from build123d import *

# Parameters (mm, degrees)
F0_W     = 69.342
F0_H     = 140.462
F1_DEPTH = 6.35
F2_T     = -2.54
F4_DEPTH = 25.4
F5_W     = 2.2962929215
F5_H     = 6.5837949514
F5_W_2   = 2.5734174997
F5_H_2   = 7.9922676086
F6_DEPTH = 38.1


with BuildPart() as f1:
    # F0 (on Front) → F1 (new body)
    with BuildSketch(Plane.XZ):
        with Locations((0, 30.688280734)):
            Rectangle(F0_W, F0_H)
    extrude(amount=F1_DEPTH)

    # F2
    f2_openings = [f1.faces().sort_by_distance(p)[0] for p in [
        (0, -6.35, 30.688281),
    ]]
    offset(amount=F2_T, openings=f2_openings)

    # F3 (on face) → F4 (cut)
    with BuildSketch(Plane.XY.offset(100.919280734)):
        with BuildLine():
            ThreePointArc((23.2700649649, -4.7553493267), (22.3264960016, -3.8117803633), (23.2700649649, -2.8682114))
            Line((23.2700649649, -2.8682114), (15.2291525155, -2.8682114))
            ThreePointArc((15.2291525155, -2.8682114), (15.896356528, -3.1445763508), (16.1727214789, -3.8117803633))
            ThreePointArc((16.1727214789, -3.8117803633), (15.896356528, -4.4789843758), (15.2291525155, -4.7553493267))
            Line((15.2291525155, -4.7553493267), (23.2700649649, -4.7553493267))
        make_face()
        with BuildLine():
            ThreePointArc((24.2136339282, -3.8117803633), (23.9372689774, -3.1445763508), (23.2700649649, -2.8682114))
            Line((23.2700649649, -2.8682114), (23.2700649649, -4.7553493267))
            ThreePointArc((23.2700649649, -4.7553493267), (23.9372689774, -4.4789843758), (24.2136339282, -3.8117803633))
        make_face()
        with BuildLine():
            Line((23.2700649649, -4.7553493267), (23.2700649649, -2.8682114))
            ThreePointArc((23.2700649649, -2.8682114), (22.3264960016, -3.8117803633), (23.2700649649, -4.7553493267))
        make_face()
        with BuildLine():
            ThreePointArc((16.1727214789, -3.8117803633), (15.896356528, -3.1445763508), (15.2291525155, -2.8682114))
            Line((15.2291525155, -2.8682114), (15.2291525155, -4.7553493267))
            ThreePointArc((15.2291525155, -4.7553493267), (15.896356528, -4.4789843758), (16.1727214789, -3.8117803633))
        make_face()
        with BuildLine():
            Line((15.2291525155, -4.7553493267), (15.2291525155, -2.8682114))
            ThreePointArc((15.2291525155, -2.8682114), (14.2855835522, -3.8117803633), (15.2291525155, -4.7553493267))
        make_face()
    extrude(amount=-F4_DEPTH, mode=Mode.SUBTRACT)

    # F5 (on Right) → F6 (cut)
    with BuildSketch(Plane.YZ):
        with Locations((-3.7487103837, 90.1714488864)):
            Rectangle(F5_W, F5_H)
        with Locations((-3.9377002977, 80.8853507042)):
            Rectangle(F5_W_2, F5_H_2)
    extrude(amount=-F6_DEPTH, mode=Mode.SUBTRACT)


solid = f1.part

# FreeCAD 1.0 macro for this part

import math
import FreeCAD as App
import Part
import Sketcher

V = App.Vector
Q = App.Units.Quantity


def faces_at(feature, points):
    """Names of the faces that lie closest to the given points."""
    faces = feature.Shape.Faces
    near = lambda p: min(range(len(faces)), key=lambda i: faces[i].distToShape(Part.Vertex(*p))[0])
    return sorted({f"Face{near(p) + 1}" for p in points})

doc = App.newDocument("Part")
body = doc.addObject("PartDesign::Body", "Body")

# Sketch on XZ plane
sketch1 = body.newObject("Sketcher::SketchObject", "Sketch")
sketch1.AttachmentSupport = (doc.getObject("XZ_Plane"), [""])
sketch1.MapMode = "FlatFace"
sketch1.addGeometry(Part.LineSegment(V(-35, 101, 0), V(-35, -40, 0)), False)
sketch1.addGeometry(Part.LineSegment(V(-35, -40, 0), V(35, -40, 0)), False)
sketch1.addGeometry(Part.LineSegment(V(35, -40, 0), V(35, 101, 0)), False)
sketch1.addGeometry(Part.LineSegment(V(35, 101, 0), V(-35, 101, 0)), False)
sketch1.addConstraint(Sketcher.Constraint("Coincident", 0, 2, 1, 1))
sketch1.addConstraint(Sketcher.Constraint("Coincident", 1, 2, 2, 1))
sketch1.addConstraint(Sketcher.Constraint("Coincident", 2, 2, 3, 1))
sketch1.addConstraint(Sketcher.Constraint("Coincident", 3, 2, 0, 1))
sketch1.addConstraint(Sketcher.Constraint("Vertical", 0))
sketch1.addConstraint(Sketcher.Constraint("Horizontal", 1))
sketch1.addConstraint(Sketcher.Constraint("Vertical", 2))
sketch1.addConstraint(Sketcher.Constraint("Horizontal", 3))
sketch1.addConstraint(Sketcher.Constraint("DistanceX", 1, 1, 1, 2, Q("2.73 in")))
sketch1.addConstraint(Sketcher.Constraint("DistanceY", 0, 2, 0, 1, Q("5.53 in")))
sketch1.addConstraint(Sketcher.Constraint("DistanceX", 0, 2, -1, 1, Q("1.365 in")))
sketch1.addConstraint(Sketcher.Constraint("DistanceY", 0, 2, -1, 1, Q("1.5568 in")))
pad1 = body.newObject("PartDesign::Pad", "Pad")
pad1.Profile = sketch1
pad1.Length = Q("0.25 in")
doc.recompute()

thickness = body.newObject("PartDesign::Thickness", "Thickness")
thickness.Base = (pad1, faces_at(pad1, [(0, -6.35, 30.688)]))
thickness.Value = Q("0.1 in")
thickness.Reversed = True
thickness.Join = "Arc"

# Sketch on XY plane
sketch2 = body.newObject("Sketcher::SketchObject", "Sketch001")
sketch2.AttachmentSupport = (doc.getObject("XY_Plane"), [""])
sketch2.MapMode = "FlatFace"
sketch2.AttachmentOffset = App.Placement(V(0, 0, 3.9732 * 25.4), App.Rotation())
sketch2.addGeometry(Part.LineSegment(V(23.3, -2.9, 0), V(15.2, -2.9, 0)), False)
sketch2.addGeometry(Part.ArcOfCircle(Part.Circle(V(15.2, -3.8, 0), V(0, 0, 1), 0.9), math.radians(90), math.radians(270)), False)
sketch2.addGeometry(Part.LineSegment(V(15.2, -4.8, 0), V(23.3, -4.8, 0)), False)
sketch2.addGeometry(Part.ArcOfCircle(Part.Circle(V(23.3, -3.8, 0), V(0, 0, 1), 0.9), math.radians(-90), math.radians(0)), False)
sketch2.addGeometry(Part.ArcOfCircle(Part.Circle(V(23.3, -3.8, 0), V(0, 0, 1), 0.9), math.radians(0), math.radians(90)), False)
sketch2.addConstraint(Sketcher.Constraint("Tangent", 0, 2, 1, 1))
sketch2.addConstraint(Sketcher.Constraint("Tangent", 1, 2, 2, 1))
sketch2.addConstraint(Sketcher.Constraint("Tangent", 2, 2, 3, 1))
sketch2.addConstraint(Sketcher.Constraint("Tangent", 3, 2, 4, 1))
sketch2.addConstraint(Sketcher.Constraint("Tangent", 4, 2, 0, 1))
sketch2.addConstraint(Sketcher.Constraint("Horizontal", 0))
sketch2.addConstraint(Sketcher.Constraint("Horizontal", 2))
sketch2.addConstraint(Sketcher.Constraint("Equal", 1, 3))
sketch2.addConstraint(Sketcher.Constraint("Horizontal", 4, 3, 3, 2))
sketch2.addConstraint(Sketcher.Constraint("Radius", 1, 0.943569))
sketch2.addConstraint(Sketcher.Constraint("DistanceX", 0, 2, 0, 1, 8.040912))
sketch2.addConstraint(Sketcher.Constraint("DistanceY", 1, 3, -1, 1, 3.81178))
sketch2.addConstraint(Sketcher.Constraint("DistanceX", -1, 1, 1, 3, 15.229153))
pocket1 = body.newObject("PartDesign::Pocket", "Pocket")
pocket1.Profile = sketch2
pocket1.Length = Q("1 in")

# Sketch on YZ plane
sketch3 = body.newObject("Sketcher::SketchObject", "Sketch002")
sketch3.AttachmentSupport = (doc.getObject("YZ_Plane"), [""])
sketch3.MapMode = "FlatFace"
sketch3.addGeometry(Part.LineSegment(V(-4.9, 93.5, 0), V(-4.9, 86.9, 0)), False)
sketch3.addGeometry(Part.LineSegment(V(-4.9, 86.9, 0), V(-2.6, 86.9, 0)), False)
sketch3.addGeometry(Part.LineSegment(V(-2.6, 86.9, 0), V(-2.6, 93.5, 0)), False)
sketch3.addGeometry(Part.LineSegment(V(-2.6, 93.5, 0), V(-4.9, 93.5, 0)), False)
sketch3.addGeometry(Part.LineSegment(V(-5.2, 84.9, 0), V(-5.2, 76.9, 0)), False)
sketch3.addGeometry(Part.LineSegment(V(-5.2, 76.9, 0), V(-2.7, 76.9, 0)), False)
sketch3.addGeometry(Part.LineSegment(V(-2.7, 76.9, 0), V(-2.7, 84.9, 0)), False)
sketch3.addGeometry(Part.LineSegment(V(-2.7, 84.9, 0), V(-5.2, 84.9, 0)), False)
sketch3.addConstraint(Sketcher.Constraint("Coincident", 0, 2, 1, 1))
sketch3.addConstraint(Sketcher.Constraint("Coincident", 1, 2, 2, 1))
sketch3.addConstraint(Sketcher.Constraint("Coincident", 2, 2, 3, 1))
sketch3.addConstraint(Sketcher.Constraint("Coincident", 3, 2, 0, 1))
sketch3.addConstraint(Sketcher.Constraint("Coincident", 4, 2, 5, 1))
sketch3.addConstraint(Sketcher.Constraint("Coincident", 5, 2, 6, 1))
sketch3.addConstraint(Sketcher.Constraint("Coincident", 6, 2, 7, 1))
sketch3.addConstraint(Sketcher.Constraint("Coincident", 7, 2, 4, 1))
sketch3.addConstraint(Sketcher.Constraint("Vertical", 0))
sketch3.addConstraint(Sketcher.Constraint("Horizontal", 1))
sketch3.addConstraint(Sketcher.Constraint("Vertical", 2))
sketch3.addConstraint(Sketcher.Constraint("Horizontal", 3))
sketch3.addConstraint(Sketcher.Constraint("Vertical", 4))
sketch3.addConstraint(Sketcher.Constraint("Horizontal", 5))
sketch3.addConstraint(Sketcher.Constraint("Vertical", 6))
sketch3.addConstraint(Sketcher.Constraint("Horizontal", 7))
sketch3.addConstraint(Sketcher.Constraint("DistanceX", 1, 1, 1, 2, 2.296293))
sketch3.addConstraint(Sketcher.Constraint("DistanceX", 5, 1, 5, 2, 2.573418))
sketch3.addConstraint(Sketcher.Constraint("DistanceY", 0, 2, 0, 1, 6.583795))
sketch3.addConstraint(Sketcher.Constraint("DistanceY", 4, 2, 4, 1, 7.992268))
sketch3.addConstraint(Sketcher.Constraint("DistanceY", -1, 1, 0, 2, 86.879551))
sketch3.addConstraint(Sketcher.Constraint("DistanceX", 4, 2, -1, 1, 5.224409))
sketch3.addConstraint(Sketcher.Constraint("DistanceY", 4, 2, 3, 2, 16.574129))
sketch3.addConstraint(Sketcher.Constraint("DistanceX", 0, 2, -1, 1, 4.896857))
pocket2 = body.newObject("PartDesign::Pocket", "Pocket001")
pocket2.Profile = sketch3
pocket2.Length = Q("1.5 in")

doc.recompute()
